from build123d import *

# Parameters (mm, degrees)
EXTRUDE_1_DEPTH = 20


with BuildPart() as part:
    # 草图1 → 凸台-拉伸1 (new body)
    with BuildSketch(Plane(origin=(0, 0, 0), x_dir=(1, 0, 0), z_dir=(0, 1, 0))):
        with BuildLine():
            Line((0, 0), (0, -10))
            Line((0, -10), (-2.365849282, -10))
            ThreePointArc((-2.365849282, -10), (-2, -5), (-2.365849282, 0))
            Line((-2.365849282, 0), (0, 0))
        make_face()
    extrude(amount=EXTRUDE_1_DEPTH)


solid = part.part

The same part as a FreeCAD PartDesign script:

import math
import FreeCAD as App
import Part
import Sketcher
Q = App.Units.Quantity

doc = App.newDocument("Part")
params = doc.addObject("Spreadsheet::Sheet", "Params")
for row, (alias, value) in enumerate([
    ("sketch1_height", "10 mm"),
    ("sketch1_radius", "34.35 mm"),
    ("pad1_length", "20 mm"),
], start=1):
    params.set(f"A{row}", alias)
    params.set(f"B{row}", "=" + value)
    params.setAlias(f"B{row}", alias)

body = doc.addObject("PartDesign::Body", "Body")

sketch1 = body.newObject("Sketcher::SketchObject", "Sketch")
sketch1.AttachmentSupport = (doc.getObject("XZ_Plane"), [""])
sketch1.MapMode = "FlatFace"
sketch1.addGeometry(Part.LineSegment(App.Vector(0, 10, 0), App.Vector(0, 0, 0)), False)
sketch1.addGeometry(Part.LineSegment(App.Vector(0, 0, 0), App.Vector(-2.4, 0, 0)), False)
sketch1.addGeometry(Part.ArcOfCircle(Part.Circle(App.Vector(-36.4, 5, 0), App.Vector(0, 0, 1), 34.4), math.radians(-8.37), math.radians(8.37)), False)
sketch1.addGeometry(Part.LineSegment(App.Vector(-2.4, 10, 0), App.Vector(0, 10, 0)), False)
sketch1.addConstraint(Sketcher.Constraint("Coincident", 0, 2, 1, 1))
sketch1.addConstraint(Sketcher.Constraint("Coincident", 1, 2, 2, 1))
sketch1.addConstraint(Sketcher.Constraint("Coincident", 2, 2, 3, 1))
sketch1.addConstraint(Sketcher.Constraint("Coincident", 3, 2, 0, 1))
sketch1.addConstraint(Sketcher.Constraint("Vertical", 0))
sketch1.addConstraint(Sketcher.Constraint("Horizontal", 1))
sketch1.addConstraint(Sketcher.Constraint("Horizontal", 3))
sketch1.addConstraint(Sketcher.Constraint("Coincident", 0, 2, -1, 1))
sketch1.addConstraint(Sketcher.Constraint("Vertical", 1, 2, 2, 2))
sketch1.addConstraint(Sketcher.Constraint("DistanceY", 0, 2, 0, 1, Q("10 mm")))
sketch1.addConstraint(Sketcher.Constraint("Radius", 2, Q("34.35 mm")))
sketch1.addConstraint(Sketcher.Constraint("DistanceX", 2, 3, -1, 1, Q("36.35 mm")))
sketch1.setExpression("Constraints[9]", "Params.sketch1_height")
sketch1.setExpression("Constraints[10]", "Params.sketch1_radius")
pad1 = body.newObject("PartDesign::Pad", "Pad")
pad1.Profile = sketch1
pad1.setExpression("Length", "Params.pad1_length")
pad1.Reversed = True

doc.recompute()
